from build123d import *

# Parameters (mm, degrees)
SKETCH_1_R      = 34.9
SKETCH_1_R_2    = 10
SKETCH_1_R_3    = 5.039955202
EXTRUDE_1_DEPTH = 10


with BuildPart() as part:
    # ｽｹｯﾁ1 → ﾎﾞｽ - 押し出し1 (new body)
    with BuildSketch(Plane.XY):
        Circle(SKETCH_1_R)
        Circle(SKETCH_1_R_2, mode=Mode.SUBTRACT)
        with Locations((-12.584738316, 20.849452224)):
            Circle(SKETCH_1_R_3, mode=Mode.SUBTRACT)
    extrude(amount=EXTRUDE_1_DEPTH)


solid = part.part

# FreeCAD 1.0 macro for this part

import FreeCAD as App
import Part
import Sketcher

V = App.Vector
Q = App.Units.Quantity

doc = App.newDocument("Part")
body = doc.addObject("PartDesign::Body", "Body")

sketch1 = body.newObject("Sketcher::SketchObject", "Sketch")
sketch1.AttachmentSupport = (doc.getObject("XY_Plane"), [""])
sketch1.MapMode = "FlatFace"
sketch1.addGeometry(Part.Circle(V(0, 0, 0), V(0, 0, 1), 34.9), False)
sketch1.addGeometry(Part.Circle(V(0, 0, 0), V(0, 0, 1), 10), False)
sketch1.addGeometry(Part.Circle(V(-12.584738, 20.849452, 0), V(0, 0, 1), 5.039955), False)
sketch1.addConstraint(Sketcher.Constraint("Coincident", 0, 3, -1, 1))
sketch1.addConstraint(Sketcher.Constraint("Coincident", 1, 3, -1, 1))
sketch1.addConstraint(Sketcher.Constraint("Diameter", 1, Q("20 mm")))
sketch1.addConstraint(Sketcher.Constraint("Diameter", 0, Q("69.8 mm")))
sketch1.addConstraint(Sketcher.Constraint("Diameter", 2, Q("10.07991 mm")))
sketch1.addConstraint(Sketcher.Constraint("DistanceX", 2, 3, -1, 1, Q("12.584738 mm")))
sketch1.addConstraint(Sketcher.Constraint("DistanceY", -1, 1, 2, 3, Q("20.849452 mm")))
pad1 = body.newObject("PartDesign::Pad", "Pad")
pad1.Profile = sketch1
pad1.Length = 10

doc.recompute()
